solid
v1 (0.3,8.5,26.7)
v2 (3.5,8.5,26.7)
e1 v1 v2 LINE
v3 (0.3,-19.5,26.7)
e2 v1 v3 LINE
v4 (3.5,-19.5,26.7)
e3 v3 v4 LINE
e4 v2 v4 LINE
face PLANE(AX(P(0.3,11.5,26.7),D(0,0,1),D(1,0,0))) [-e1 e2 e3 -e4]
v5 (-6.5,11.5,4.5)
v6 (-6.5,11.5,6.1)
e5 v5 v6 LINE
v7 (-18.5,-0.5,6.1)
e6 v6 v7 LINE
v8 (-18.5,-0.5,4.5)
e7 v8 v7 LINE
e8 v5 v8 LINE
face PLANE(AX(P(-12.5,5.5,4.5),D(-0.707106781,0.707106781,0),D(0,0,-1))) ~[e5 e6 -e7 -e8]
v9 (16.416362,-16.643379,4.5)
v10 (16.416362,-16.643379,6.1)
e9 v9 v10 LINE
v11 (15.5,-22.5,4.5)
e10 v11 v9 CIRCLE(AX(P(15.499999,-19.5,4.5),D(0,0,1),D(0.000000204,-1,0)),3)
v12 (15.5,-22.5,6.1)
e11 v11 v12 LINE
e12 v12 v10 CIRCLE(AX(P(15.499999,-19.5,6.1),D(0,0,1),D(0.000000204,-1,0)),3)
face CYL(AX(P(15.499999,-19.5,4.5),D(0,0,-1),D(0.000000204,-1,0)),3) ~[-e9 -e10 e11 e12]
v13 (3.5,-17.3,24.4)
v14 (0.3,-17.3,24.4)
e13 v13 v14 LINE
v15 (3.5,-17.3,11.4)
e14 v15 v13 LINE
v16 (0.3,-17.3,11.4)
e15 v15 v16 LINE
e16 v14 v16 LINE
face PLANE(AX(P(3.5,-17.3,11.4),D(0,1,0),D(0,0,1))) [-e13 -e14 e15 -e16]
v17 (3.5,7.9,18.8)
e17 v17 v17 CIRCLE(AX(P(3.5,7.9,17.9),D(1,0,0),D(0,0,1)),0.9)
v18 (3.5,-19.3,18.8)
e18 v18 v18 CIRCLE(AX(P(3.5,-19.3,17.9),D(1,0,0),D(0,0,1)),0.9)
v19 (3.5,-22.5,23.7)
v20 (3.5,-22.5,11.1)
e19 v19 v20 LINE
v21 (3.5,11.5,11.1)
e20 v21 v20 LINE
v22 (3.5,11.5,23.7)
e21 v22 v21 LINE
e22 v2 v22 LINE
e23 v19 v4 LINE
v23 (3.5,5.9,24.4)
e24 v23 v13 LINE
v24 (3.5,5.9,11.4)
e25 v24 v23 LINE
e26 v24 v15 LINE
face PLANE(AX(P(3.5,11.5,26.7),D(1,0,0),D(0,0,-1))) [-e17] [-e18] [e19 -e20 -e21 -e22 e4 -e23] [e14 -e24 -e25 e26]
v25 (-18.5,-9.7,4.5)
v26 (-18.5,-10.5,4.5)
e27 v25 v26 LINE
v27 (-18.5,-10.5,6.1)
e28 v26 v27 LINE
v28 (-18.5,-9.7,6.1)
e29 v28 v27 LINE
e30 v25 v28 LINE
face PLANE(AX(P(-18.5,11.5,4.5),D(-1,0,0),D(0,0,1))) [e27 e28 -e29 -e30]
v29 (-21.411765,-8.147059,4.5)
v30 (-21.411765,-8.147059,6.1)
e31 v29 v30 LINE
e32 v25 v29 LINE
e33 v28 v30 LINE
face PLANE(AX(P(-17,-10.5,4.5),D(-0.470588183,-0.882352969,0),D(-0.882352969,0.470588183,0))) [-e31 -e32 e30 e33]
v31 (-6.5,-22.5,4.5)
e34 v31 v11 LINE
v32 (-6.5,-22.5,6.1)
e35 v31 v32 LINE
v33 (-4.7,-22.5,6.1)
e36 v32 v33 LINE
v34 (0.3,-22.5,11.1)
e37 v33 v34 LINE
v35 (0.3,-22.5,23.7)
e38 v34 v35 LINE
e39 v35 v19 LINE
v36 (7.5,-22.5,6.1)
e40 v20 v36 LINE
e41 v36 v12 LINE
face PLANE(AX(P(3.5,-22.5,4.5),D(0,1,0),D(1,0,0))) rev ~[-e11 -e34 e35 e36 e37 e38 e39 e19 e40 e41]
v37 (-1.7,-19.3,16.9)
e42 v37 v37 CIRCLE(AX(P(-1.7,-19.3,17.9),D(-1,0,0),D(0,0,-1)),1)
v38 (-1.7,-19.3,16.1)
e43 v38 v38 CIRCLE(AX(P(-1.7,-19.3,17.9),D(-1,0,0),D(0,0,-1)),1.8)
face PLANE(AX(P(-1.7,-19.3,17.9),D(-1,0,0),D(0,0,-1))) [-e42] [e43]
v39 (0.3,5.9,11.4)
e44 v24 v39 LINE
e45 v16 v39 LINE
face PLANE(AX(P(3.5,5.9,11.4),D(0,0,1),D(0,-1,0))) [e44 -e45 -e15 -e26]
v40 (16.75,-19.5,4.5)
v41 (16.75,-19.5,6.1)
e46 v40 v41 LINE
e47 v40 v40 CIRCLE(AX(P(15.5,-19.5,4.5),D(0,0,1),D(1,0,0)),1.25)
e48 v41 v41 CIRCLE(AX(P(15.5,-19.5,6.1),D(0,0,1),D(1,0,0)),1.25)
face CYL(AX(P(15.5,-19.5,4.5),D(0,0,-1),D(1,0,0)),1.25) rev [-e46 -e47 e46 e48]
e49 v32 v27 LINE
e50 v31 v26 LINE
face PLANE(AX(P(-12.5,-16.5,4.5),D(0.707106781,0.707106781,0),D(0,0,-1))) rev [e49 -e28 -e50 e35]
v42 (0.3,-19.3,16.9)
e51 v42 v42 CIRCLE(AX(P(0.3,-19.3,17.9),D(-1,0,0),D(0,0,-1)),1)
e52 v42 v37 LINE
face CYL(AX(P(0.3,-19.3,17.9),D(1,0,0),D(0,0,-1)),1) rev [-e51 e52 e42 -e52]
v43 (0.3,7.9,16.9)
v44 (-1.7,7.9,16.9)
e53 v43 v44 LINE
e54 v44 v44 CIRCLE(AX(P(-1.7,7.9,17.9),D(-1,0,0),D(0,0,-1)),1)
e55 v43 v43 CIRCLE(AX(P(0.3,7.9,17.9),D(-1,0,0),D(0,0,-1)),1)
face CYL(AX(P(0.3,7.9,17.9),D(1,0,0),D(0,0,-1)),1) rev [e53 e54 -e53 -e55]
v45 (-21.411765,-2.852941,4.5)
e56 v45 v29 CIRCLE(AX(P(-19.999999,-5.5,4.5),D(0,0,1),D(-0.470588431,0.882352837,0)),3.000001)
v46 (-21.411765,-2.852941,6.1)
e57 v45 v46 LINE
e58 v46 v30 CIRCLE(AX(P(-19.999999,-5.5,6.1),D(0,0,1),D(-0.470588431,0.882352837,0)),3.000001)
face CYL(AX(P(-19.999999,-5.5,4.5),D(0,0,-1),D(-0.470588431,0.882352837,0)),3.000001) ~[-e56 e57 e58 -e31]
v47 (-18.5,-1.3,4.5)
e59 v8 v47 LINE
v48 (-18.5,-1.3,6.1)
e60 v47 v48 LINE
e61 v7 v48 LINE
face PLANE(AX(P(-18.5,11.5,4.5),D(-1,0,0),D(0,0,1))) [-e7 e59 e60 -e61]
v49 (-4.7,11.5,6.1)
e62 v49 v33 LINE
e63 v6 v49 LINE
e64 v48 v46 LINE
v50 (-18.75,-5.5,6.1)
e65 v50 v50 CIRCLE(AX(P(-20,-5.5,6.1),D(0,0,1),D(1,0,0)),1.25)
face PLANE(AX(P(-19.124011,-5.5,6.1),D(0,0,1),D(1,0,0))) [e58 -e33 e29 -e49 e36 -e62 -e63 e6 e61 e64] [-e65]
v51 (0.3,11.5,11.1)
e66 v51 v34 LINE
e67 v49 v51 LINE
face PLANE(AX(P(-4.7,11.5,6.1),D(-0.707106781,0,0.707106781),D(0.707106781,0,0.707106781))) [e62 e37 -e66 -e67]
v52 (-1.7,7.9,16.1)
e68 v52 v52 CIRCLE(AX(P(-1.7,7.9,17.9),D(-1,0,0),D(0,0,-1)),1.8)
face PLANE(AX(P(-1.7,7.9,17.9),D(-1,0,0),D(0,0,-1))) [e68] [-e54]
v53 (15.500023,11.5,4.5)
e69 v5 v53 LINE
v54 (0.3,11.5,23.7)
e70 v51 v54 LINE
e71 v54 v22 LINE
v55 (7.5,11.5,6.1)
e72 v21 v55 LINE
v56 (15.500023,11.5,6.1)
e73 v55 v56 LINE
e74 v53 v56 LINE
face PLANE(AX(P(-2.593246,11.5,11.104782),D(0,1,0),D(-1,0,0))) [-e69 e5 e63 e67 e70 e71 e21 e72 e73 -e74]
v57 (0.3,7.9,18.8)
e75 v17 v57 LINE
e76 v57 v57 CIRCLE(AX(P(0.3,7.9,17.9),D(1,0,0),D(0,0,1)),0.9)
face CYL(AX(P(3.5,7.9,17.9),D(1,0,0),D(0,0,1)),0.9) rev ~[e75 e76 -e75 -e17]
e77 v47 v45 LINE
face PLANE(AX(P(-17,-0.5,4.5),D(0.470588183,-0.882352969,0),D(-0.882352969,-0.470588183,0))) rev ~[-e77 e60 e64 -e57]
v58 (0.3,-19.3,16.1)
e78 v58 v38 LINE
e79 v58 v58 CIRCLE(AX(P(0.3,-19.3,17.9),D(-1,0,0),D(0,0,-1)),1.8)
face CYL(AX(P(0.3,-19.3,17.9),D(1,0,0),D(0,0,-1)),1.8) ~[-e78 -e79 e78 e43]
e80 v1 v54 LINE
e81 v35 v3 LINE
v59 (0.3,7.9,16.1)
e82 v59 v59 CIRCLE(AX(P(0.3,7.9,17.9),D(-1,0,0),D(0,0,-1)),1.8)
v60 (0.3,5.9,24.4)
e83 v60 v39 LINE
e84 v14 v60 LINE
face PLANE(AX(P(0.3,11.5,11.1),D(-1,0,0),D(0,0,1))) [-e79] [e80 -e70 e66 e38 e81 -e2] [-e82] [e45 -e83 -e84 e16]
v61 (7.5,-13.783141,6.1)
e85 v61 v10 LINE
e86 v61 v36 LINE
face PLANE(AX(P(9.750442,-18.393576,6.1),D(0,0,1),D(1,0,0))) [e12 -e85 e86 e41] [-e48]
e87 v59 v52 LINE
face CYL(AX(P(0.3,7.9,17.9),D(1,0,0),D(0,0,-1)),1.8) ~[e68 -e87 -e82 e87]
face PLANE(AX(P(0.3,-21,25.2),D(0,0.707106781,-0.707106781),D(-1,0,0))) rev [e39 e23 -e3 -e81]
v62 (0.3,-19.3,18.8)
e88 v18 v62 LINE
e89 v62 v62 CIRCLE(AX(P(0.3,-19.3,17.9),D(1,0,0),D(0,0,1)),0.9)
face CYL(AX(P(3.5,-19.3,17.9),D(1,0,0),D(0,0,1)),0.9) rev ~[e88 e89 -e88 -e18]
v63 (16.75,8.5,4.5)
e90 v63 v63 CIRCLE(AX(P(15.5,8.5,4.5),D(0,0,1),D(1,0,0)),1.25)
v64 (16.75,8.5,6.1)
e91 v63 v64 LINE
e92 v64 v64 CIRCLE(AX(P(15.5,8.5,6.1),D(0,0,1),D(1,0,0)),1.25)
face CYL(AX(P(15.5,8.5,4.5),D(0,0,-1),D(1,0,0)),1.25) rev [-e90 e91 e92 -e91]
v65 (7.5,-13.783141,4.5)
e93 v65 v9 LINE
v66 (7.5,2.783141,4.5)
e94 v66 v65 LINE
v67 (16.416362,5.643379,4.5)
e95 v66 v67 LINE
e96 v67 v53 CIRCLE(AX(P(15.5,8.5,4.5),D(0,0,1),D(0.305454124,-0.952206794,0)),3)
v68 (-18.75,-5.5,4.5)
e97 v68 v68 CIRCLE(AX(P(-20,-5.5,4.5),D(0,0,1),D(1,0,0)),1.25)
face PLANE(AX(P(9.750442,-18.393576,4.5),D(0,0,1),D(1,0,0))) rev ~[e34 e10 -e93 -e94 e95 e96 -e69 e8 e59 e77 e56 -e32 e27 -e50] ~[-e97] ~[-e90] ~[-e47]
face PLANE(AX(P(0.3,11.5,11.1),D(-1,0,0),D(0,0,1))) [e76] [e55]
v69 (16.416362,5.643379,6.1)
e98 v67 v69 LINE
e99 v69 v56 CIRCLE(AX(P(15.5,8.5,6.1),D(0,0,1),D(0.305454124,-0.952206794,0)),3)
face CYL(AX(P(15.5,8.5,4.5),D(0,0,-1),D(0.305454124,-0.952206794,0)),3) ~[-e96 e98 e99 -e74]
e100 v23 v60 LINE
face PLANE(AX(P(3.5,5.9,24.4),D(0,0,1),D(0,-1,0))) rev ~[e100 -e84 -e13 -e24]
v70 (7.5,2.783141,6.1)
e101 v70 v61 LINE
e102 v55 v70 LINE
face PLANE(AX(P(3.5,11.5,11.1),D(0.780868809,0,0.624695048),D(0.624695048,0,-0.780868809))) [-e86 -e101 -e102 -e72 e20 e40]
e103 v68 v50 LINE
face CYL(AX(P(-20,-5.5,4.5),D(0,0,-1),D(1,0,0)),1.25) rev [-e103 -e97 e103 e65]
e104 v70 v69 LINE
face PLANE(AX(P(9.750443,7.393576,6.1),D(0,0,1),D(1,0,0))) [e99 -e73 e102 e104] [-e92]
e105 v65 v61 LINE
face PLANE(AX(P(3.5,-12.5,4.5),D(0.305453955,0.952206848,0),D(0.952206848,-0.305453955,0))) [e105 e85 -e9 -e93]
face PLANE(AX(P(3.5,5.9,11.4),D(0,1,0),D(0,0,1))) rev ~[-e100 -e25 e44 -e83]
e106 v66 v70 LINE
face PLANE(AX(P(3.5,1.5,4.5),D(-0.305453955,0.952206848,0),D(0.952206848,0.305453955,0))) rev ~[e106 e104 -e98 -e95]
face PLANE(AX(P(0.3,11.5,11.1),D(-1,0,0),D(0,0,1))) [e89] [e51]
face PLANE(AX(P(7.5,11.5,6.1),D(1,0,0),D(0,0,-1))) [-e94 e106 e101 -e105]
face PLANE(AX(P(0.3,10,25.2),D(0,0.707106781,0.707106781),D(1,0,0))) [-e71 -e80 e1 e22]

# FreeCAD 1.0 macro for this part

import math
import FreeCAD as App
import Part
import Sketcher
Q = App.Units.Quantity


def edges_at(feature, points):
    """Names of the edges that pass closest to the given points."""
    edges = feature.Shape.Edges
    near = lambda p: min(range(len(edges)), key=lambda i: edges[i].distToShape(Part.Vertex(*p))[0])
    return sorted({f"Edge{near(p) + 1}" for p in points})


def add_polygon(sketch, points):
    """Adds a closed chain of lines whose ends are joined by coincident constraints."""
    first, n = sketch.GeometryCount, len(points)
    for a, b in zip(points, points[1:] + points[:1]):
        sketch.addGeometry(Part.LineSegment(App.Vector(*a, 0), App.Vector(*b, 0)), False)
    for i in range(n):
        sketch.addConstraint(Sketcher.Constraint("Coincident", first + i, 2, first + (i + 1) % n, 1))

doc = App.newDocument("Part")
body = doc.addObject("PartDesign::Body", "Body")

# Sketch on XZ plane
sketch1 = body.newObject("Sketcher::SketchObject", "Sketch")
sketch1.AttachmentSupport = (doc.getObject("XZ_Plane"), [""])
sketch1.MapMode = "FlatFace"
add_polygon(sketch1, [(-8.2, 1.6), (-22, 1.6), (-22, 0), (4, 0), (4, 1.6), (0, 6.6), (0, 22.2), (-3.2, 22.2), (-3.2, 6.6)])  # lines 0-8
sketch1.addConstraint([
    Sketcher.Constraint("Horizontal", 0),
    Sketcher.Constraint("Vertical", 1),
    Sketcher.Constraint("Horizontal", 2),
    Sketcher.Constraint("Vertical", 3),
    Sketcher.Constraint("Vertical", 5),
    Sketcher.Constraint("Horizontal", 6),
    Sketcher.Constraint("Vertical", 7),
    Sketcher.Constraint("PointOnObject", 1, 2, -1),
    Sketcher.Constraint("PointOnObject", 4, 2, -2),
    Sketcher.Constraint("Horizontal", 0, 2, 3, 2),
    Sketcher.Constraint("Horizontal", 4, 2, 7, 2),
    Sketcher.Constraint("DistanceX", 2, 1, 2, 2, Q("26 mm")),
    Sketcher.Constraint("Angle", 8, Q("-135 deg")),
    Sketcher.Constraint("DistanceX", 0, 2, 0, 1, Q("13.8 mm")),
    Sketcher.Constraint("DistanceX", 6, 2, 6, 1, Q("3.2 mm")),
    Sketcher.Constraint("DistanceY", 1, 2, 1, 1, Q("1.6 mm")),
    Sketcher.Constraint("DistanceY", 5, 1, 5, 2, Q("15.6 mm")),
    Sketcher.Constraint("DistanceX", 0, 2, -1, 1, Q("22 mm")),
])
pad1 = body.newObject("PartDesign::Pad", "Pad")
pad1.Profile = sketch1
pad1.Length = 34

# Sketch on YZ plane
sketch2 = body.newObject("Sketcher::SketchObject", "Sketch001")
sketch2.AttachmentSupport = (doc.getObject("YZ_Plane"), [""])
sketch2.MapMode = "FlatFace"
sketch2.addGeometry([
    Part.Circle(App.Vector(-30.8, 13.4, 0), App.Vector(0, 0, 1), 0.9),
    Part.Circle(App.Vector(-3.6, 13.4, 0), App.Vector(0, 0, 1), 0.9),
], False)
sketch2.addConstraint([
    Sketcher.Constraint("Equal", 0, 1),
    Sketcher.Constraint("Horizontal", 0, 3, 1, 3),
    Sketcher.Constraint("Diameter", 0, Q("1.8 mm")),
    Sketcher.Constraint("DistanceX", 0, 3, -1, 1, Q("30.8 mm")),
    Sketcher.Constraint("DistanceY", -1, 1, 0, 3, Q("13.4 mm")),
    Sketcher.Constraint("DistanceX", 1, 3, -1, 1, Q("3.6 mm")),
])
pocket1 = body.newObject("PartDesign::Pocket", "Pocket")
pocket1.Profile = sketch2
pocket1.Type = "ThroughAll"

# Sketch on YZ plane
sketch3 = body.newObject("Sketcher::SketchObject", "Sketch002")
sketch3.AttachmentSupport = (doc.getObject("YZ_Plane"), [""])
sketch3.MapMode = "FlatFace"
add_polygon(sketch3, [(-29, 7), (-6, 7), (-6, 20), (-29, 20)])  # lines 0-3
sketch3.addConstraint([
    Sketcher.Constraint("Horizontal", 0),
    Sketcher.Constraint("Vertical", 1),
    Sketcher.Constraint("Horizontal", 2),
    Sketcher.Constraint("Vertical", 3),
    Sketcher.Constraint("DistanceY", 1, 1, 1, 2, Q("13 mm")),
    Sketcher.Constraint("DistanceX", 0, 1, 0, 2, Q("23.2 mm")),
    Sketcher.Constraint("DistanceX", 0, 2, -1, 1, Q("5.6 mm")),
    Sketcher.Constraint("DistanceY", -1, 1, 0, 2, Q("6.9 mm")),
])
pocket2 = body.newObject("PartDesign::Pocket", "Pocket001")
pocket2.Profile = sketch3
pocket2.Type = "ThroughAll"

# Sketch on XY plane
sketch4 = body.newObject("Sketcher::SketchObject", "Sketch003")
sketch4.AttachmentSupport = (doc.getObject("XY_Plane"), [""])
sketch4.MapMode = "FlatFace"
sketch4.addGeometry([
    Part.ArcOfCircle(Part.Circle(App.Vector(-23.5, -17, 0), App.Vector(0, 0, 1), 3), math.radians(118), math.radians(242)),  # 0
    Part.LineSegment(App.Vector(-24.9, -19.6, 0), App.Vector(-20.5, -22, 0)),  # 1
    Part.LineSegment(App.Vector(-20.5, -22, 0), App.Vector(-20.5, -12, 0)),  # 2
    Part.LineSegment(App.Vector(-20.5, -12, 0), App.Vector(-24.9, -14.4, 0)),  # 3
    Part.Circle(App.Vector(-23.5, -17, 0), App.Vector(0, 0, 1), 1.2),  # 4
], False)
sketch4.addConstraint([
    Sketcher.Constraint("Tangent", 0, 2, 1, 1),
    Sketcher.Constraint("Coincident", 1, 2, 2, 1),
    Sketcher.Constraint("Coincident", 2, 2, 3, 1),
    Sketcher.Constraint("Tangent", 3, 2, 0, 1),
    Sketcher.Constraint("Vertical", 2),
    Sketcher.Constraint("Coincident", 4, 3, 0, 3),
    Sketcher.Constraint("Vertical", 0, 2, 3, 2),
    Sketcher.Constraint("Radius", 0, Q("3.000001 mm")),
    Sketcher.Constraint("Diameter", 4, Q("2.5 mm")),
    Sketcher.Constraint("DistanceY", 2, 1, 2, 2, Q("10 mm")),
    Sketcher.Constraint("Distance", 1, Q("5 mm")),
    Sketcher.Constraint("DistanceY", 0, 3, -1, 1, Q("17 mm")),
    Sketcher.Constraint("DistanceX", 0, 3, -1, 1, Q("23.499999 mm")),
])
pad2 = body.newObject("PartDesign::Pad", "Pad001")
pad2.Profile = sketch4
pad2.Length = 1.6

# Sketch on XY plane
sketch5 = body.newObject("Sketcher::SketchObject", "Sketch004")
sketch5.AttachmentSupport = (doc.getObject("XY_Plane"), [""])
sketch5.MapMode = "FlatFace"
sketch5.addGeometry([
    Part.ArcOfCircle(Part.Circle(App.Vector(12, -31, 0), App.Vector(0, 0, 1), 3), math.radians(-90), math.radians(72)),  # 0
    Part.LineSegment(App.Vector(12.9, -28.1, 0), App.Vector(0, -24, 0)),  # 1
    Part.LineSegment(App.Vector(0, -24, 0), App.Vector(0, -34, 0)),  # 2
    Part.LineSegment(App.Vector(0, -34, 0), App.Vector(12, -34, 0)),  # 3
    Part.Circle(App.Vector(12, -31, 0), App.Vector(0, 0, 1), 1.2),  # 4
    Part.ArcOfCircle(Part.Circle(App.Vector(12, -3, 0), App.Vector(0, 0, 1), 3), math.radians(-72), math.radians(90)),  # 5
    Part.LineSegment(App.Vector(12, 0, 0), App.Vector(0, 0, 0)),  # 6
    Part.LineSegment(App.Vector(0, 0, 0), App.Vector(0, -10, 0)),  # 7
    Part.LineSegment(App.Vector(0, -10, 0), App.Vector(12.9, -5.9, 0)),  # 8
    Part.Circle(App.Vector(12, -3, 0), App.Vector(0, 0, 1), 1.2),  # 9
], False)
sketch5.addConstraint([
    Sketcher.Constraint("Tangent", 0, 2, 1, 1),
    Sketcher.Constraint("Coincident", 1, 2, 2, 1),
    Sketcher.Constraint("Coincident", 2, 2, 3, 1),
    Sketcher.Constraint("Tangent", 3, 2, 0, 1),
    Sketcher.Constraint("Coincident", 5, 2, 6, 1),
    Sketcher.Constraint("Coincident", 6, 2, 7, 1),
    Sketcher.Constraint("Coincident", 7, 2, 8, 1),
    Sketcher.Constraint("Tangent", 8, 2, 5, 1),
    Sketcher.Constraint("Vertical", 2),
    Sketcher.Constraint("Horizontal", 3),
    Sketcher.Constraint("Horizontal", 6),
    Sketcher.Constraint("Vertical", 7),
    Sketcher.Constraint("Coincident", 6, 2, -1, 1),
    Sketcher.Constraint("Coincident", 4, 3, 0, 3),
    Sketcher.Constraint("Coincident", 9, 3, 5, 3),
    Sketcher.Constraint("Equal", 0, 5),
    Sketcher.Constraint("Equal", 4, 9),
    Sketcher.Constraint("PointOnObject", 1, 2, -2),
    Sketcher.Constraint("Vertical", 4, 3, 5, 3),
    Sketcher.Constraint("Vertical", 0, 2, 8, 2),
    Sketcher.Constraint("Radius", 0, Q("3 mm")),
    Sketcher.Constraint("Diameter", 4, Q("2.5 mm")),
    Sketcher.Constraint("DistanceX", 3, 1, 3, 2, Q("12 mm")),
    Sketcher.Constraint("DistanceY", 2, 2, 2, 1, Q("10 mm")),
    Sketcher.Constraint("DistanceY", 0, 3, -1, 1, Q("31 mm")),
    Sketcher.Constraint("DistanceX", 6, 2, 6, 1, Q("12.000023 mm")),
])
pad3 = body.newObject("PartDesign::Pad", "Pad002")
pad3.Profile = sketch5
pad3.Length = 1.6

# Sketch on YZ plane
sketch6 = body.newObject("Sketcher::SketchObject", "Sketch005")
sketch6.AttachmentSupport = (doc.getObject("YZ_Plane"), [""])
sketch6.MapMode = "FlatFace"
sketch6.AttachmentOffset = App.Placement(App.Vector(0, 0, -3.2), App.Rotation())
sketch6.addGeometry([
    Part.Circle(App.Vector(-30.8, 13.4, 0), App.Vector(0, 0, 1), 1.8),
    Part.Circle(App.Vector(-30.8, 13.4, 0), App.Vector(0, 0, 1), 1),
    Part.Circle(App.Vector(-3.6, 13.4, 0), App.Vector(0, 0, 1), 1.8),
    Part.Circle(App.Vector(-3.6, 13.4, 0), App.Vector(0, 0, 1), 1),
], False)
sketch6.addConstraint([
    Sketcher.Constraint("Coincident", 1, 3, 0, 3),
    Sketcher.Constraint("Coincident", 3, 3, 2, 3),
    Sketcher.Constraint("Equal", 0, 2),
    Sketcher.Constraint("Equal", 1, 3),
    Sketcher.Constraint("Horizontal", 1, 3, 2, 3),
    Sketcher.Constraint("Diameter", 1, Q("2 mm")),
    Sketcher.Constraint("Diameter", 0, Q("3.6 mm")),
    Sketcher.Constraint("DistanceX", 0, 3, -1, 1, Q("30.8 mm")),
    Sketcher.Constraint("DistanceY", -1, 1, 0, 3, Q("13.4 mm")),
    Sketcher.Constraint("DistanceX", 2, 3, -1, 1, Q("3.6 mm")),
])
pad4 = body.newObject("PartDesign::Pad", "Pad003")
pad4.Profile = sketch6
pad4.Length = 2
pad4.Reversed = True
doc.recompute()

chamfer = body.newObject("PartDesign::Chamfer", "Chamfer")
chamfer.Base = (pad4, edges_at(pad4, [(-1.6, -34, 22.2), (-1.6, 0, 22.2)]))
chamfer.Size = 3
doc.recompute()

chamfer2 = body.newObject("PartDesign::Chamfer", "Chamfer001")
chamfer2.Base = (chamfer, edges_at(chamfer, [(-22, -34, 0.8), (-22, 0, 0.8)]))
chamfer2.Size = 12
body2 = doc.addObject("PartDesign::Body", "Body001")
doc.recompute()

body.Placement = App.Placement(App.Vector(3.5, 11.5, 4.5), App.Rotation(App.Vector(0, 0, 1), 0))
boolean = body2.newObject("PartDesign::Boolean", "Boolean")
boolean.Type = "Fuse"
boolean.addObjects([body])

doc.recompute()
